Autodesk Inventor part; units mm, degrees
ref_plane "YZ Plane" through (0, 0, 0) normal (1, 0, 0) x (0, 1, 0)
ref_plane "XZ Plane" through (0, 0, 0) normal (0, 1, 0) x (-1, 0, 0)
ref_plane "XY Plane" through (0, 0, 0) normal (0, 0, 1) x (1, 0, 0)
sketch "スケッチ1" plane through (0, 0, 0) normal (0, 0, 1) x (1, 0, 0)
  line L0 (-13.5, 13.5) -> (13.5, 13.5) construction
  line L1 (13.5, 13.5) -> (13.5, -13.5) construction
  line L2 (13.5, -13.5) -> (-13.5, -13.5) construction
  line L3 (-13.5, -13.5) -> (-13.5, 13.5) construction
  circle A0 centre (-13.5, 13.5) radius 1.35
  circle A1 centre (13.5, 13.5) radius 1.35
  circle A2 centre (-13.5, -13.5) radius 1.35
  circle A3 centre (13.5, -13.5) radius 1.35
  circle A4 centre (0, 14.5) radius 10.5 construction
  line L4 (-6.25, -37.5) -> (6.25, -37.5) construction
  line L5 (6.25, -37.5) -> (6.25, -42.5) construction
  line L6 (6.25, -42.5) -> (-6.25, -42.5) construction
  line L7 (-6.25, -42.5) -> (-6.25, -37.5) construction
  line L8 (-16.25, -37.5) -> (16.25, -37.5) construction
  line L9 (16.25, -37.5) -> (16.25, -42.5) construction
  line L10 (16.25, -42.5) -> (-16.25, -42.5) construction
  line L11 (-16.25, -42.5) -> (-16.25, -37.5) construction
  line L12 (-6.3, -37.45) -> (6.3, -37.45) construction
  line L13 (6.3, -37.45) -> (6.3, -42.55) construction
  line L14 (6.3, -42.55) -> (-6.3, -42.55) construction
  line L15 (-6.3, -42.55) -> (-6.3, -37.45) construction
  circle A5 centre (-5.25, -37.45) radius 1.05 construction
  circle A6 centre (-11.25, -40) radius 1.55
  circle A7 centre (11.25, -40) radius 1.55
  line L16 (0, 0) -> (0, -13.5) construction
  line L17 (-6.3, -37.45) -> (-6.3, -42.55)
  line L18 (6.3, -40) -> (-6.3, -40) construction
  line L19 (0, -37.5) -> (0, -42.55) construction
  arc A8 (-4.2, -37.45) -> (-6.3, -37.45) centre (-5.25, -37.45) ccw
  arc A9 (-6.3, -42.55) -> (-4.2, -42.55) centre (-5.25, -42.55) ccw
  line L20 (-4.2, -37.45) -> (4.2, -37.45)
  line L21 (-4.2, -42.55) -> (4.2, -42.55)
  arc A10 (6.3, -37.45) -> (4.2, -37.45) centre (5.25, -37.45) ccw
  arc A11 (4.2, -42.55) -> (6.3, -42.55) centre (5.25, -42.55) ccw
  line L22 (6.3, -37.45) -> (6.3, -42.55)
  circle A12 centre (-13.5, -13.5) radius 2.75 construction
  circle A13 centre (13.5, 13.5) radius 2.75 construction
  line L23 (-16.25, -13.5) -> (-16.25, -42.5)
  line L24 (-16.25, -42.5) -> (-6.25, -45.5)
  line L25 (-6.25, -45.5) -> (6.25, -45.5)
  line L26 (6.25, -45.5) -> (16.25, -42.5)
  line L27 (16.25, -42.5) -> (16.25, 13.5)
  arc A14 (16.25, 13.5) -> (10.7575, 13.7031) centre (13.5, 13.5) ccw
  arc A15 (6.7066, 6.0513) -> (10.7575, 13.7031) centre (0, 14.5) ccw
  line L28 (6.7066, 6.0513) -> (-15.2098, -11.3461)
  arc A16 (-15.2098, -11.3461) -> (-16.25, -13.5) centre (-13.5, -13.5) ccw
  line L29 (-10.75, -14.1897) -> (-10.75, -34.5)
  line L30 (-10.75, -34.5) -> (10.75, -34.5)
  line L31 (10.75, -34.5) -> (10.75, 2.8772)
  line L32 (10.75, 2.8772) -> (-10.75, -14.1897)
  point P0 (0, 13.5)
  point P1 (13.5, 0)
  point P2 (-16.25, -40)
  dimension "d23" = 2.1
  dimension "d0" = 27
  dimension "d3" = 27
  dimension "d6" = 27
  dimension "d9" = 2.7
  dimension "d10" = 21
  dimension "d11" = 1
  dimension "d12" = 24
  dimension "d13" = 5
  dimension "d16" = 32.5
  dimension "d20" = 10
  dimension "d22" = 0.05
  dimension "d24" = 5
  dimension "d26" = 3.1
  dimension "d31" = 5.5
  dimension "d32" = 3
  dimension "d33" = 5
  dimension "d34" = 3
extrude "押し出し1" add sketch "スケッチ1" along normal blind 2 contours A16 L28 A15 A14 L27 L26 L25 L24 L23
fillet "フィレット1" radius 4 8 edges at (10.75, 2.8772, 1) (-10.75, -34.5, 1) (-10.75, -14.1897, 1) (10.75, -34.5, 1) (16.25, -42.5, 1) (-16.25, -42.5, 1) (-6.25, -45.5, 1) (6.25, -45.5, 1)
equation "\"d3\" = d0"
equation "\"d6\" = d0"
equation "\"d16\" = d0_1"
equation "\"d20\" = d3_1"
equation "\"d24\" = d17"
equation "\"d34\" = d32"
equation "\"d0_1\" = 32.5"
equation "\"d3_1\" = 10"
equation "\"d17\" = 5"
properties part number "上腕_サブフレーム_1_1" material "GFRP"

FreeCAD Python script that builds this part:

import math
import FreeCAD as App
import Part
import Sketcher
Q = App.Units.Quantity


def edges_at(feature, points):
    """Names of the edges that pass closest to the given points."""
    edges = feature.Shape.Edges
    near = lambda p: min(range(len(edges)), key=lambda i: edges[i].distToShape(Part.Vertex(*p))[0])
    return sorted({f"Edge{near(p) + 1}" for p in points})

doc = App.newDocument("Part")
body = doc.addObject("PartDesign::Body", "Body")

# Sketch on XY plane
sketch1 = doc.addObject("Sketcher::SketchObject", "Sketch")
body.addObject(sketch1)
sketch1.AttachmentSupport = (doc.XY_Plane, [""])
sketch1.MapMode = "FlatFace"
sketch1.addGeometry([
    Part.ArcOfCircle(Part.Circle(App.Vector(-13.5, -13.5, 0), App.Vector(0, 0, 1), 2.8), math.radians(128), math.radians(180)),  # 0
    Part.LineSegment(App.Vector(-16.2, -13.5, 0), App.Vector(-16.2, -42.5, 0)),  # 1
    Part.LineSegment(App.Vector(-16.2, -42.5, 0), App.Vector(-6.2, -45.5, 0)),  # 2
    Part.LineSegment(App.Vector(-6.2, -45.5, 0), App.Vector(6.2, -45.5, 0)),  # 3
    Part.LineSegment(App.Vector(6.2, -45.5, 0), App.Vector(16.2, -42.5, 0)),  # 4
    Part.LineSegment(App.Vector(16.2, -42.5, 0), App.Vector(16.2, 13.5, 0)),  # 5
    Part.ArcOfCircle(Part.Circle(App.Vector(13.5, 13.5, 0), App.Vector(0, 0, 1), 2.8), math.radians(0), math.radians(176)),  # 6
    Part.ArcOfCircle(Part.Circle(App.Vector(0, 14.5, 0), App.Vector(0, 0, 1), 10.8), math.radians(-52), math.radians(-4)),  # 7
    Part.LineSegment(App.Vector(6.7, 6.1, 0), App.Vector(-15.2, -11.3, 0)),  # 8
    Part.Circle(App.Vector(-11.2, -40, 0), App.Vector(0, 0, 1), 1.6),  # 9
    Part.LineSegment(App.Vector(-6.3, -42.5, 0), App.Vector(-6.3, -37.5, 0)),  # 10
    Part.ArcOfCircle(Part.Circle(App.Vector(-5.2, -37.5, 0), App.Vector(0, 0, 1), 1.1), math.radians(0), math.radians(180)),  # 11
    Part.LineSegment(App.Vector(-4.2, -37.5, 0), App.Vector(4.2, -37.5, 0)),  # 12
    Part.ArcOfCircle(Part.Circle(App.Vector(5.2, -37.5, 0), App.Vector(0, 0, 1), 1), math.radians(0), math.radians(180)),  # 13
    Part.LineSegment(App.Vector(6.3, -37.5, 0), App.Vector(6.3, -42.5, 0)),  # 14
    Part.ArcOfCircle(Part.Circle(App.Vector(5.2, -42.5, 0), App.Vector(0, 0, 1), 1), math.radians(180), math.radians(360)),  # 15
    Part.LineSegment(App.Vector(4.2, -42.5, 0), App.Vector(-4.2, -42.5, 0)),  # 16
    Part.ArcOfCircle(Part.Circle(App.Vector(-5.2, -42.5, 0), App.Vector(0, 0, 1), 1), math.radians(180), math.radians(360)),  # 17
    Part.Circle(App.Vector(11.2, -40, 0), App.Vector(0, 0, 1), 1.6),  # 18
    Part.LineSegment(App.Vector(-10.8, -34.5, 0), App.Vector(-10.8, -14.2, 0)),  # 19
    Part.LineSegment(App.Vector(-10.8, -14.2, 0), App.Vector(10.8, 2.9, 0)),  # 20
    Part.LineSegment(App.Vector(10.8, 2.9, 0), App.Vector(10.8, -34.5, 0)),  # 21
    Part.LineSegment(App.Vector(10.8, -34.5, 0), App.Vector(-10.8, -34.5, 0)),  # 22
    Part.Circle(App.Vector(-13.5, -13.5, 0), App.Vector(0, 0, 1), 1.4),  # 23
    Part.Circle(App.Vector(13.5, -13.5, 0), App.Vector(0, 0, 1), 1.4),  # 24
    Part.Circle(App.Vector(13.5, 13.5, 0), App.Vector(0, 0, 1), 1.4),  # 25
], False)
sketch1.addConstraint([
    Sketcher.Constraint("Tangent", 0, 2, 1, 1),
    Sketcher.Constraint("Coincident", 1, 2, 2, 1),
    Sketcher.Constraint("Coincident", 2, 2, 3, 1),
    Sketcher.Constraint("Coincident", 3, 2, 4, 1),
    Sketcher.Constraint("Coincident", 4, 2, 5, 1),
    Sketcher.Constraint("Tangent", 5, 2, 6, 1),
    Sketcher.Constraint("Tangent", 6, 2, 7, 2),
    Sketcher.Constraint("Tangent", 7, 1, 8, 1),
    Sketcher.Constraint("Tangent", 8, 2, 0, 1),
    Sketcher.Constraint("Tangent", 10, 2, 11, 2),
    Sketcher.Constraint("Coincident", 11, 1, 12, 1),
    Sketcher.Constraint("Coincident", 12, 2, 13, 2),
    Sketcher.Constraint("Tangent", 13, 1, 14, 1),
    Sketcher.Constraint("Tangent", 14, 2, 15, 2),
    Sketcher.Constraint("Coincident", 15, 1, 16, 1),
    Sketcher.Constraint("Coincident", 16, 2, 17, 2),
    Sketcher.Constraint("Tangent", 17, 1, 10, 1),
    Sketcher.Constraint("Coincident", 19, 2, 20, 1),
    Sketcher.Constraint("Coincident", 20, 2, 21, 1),
    Sketcher.Constraint("Coincident", 21, 2, 22, 1),
    Sketcher.Constraint("Coincident", 22, 2, 19, 1),
    Sketcher.Constraint("Vertical", 1),
    Sketcher.Constraint("Horizontal", 3),
    Sketcher.Constraint("Vertical", 5),
    Sketcher.Constraint("Vertical", 10),
    Sketcher.Constraint("Horizontal", 12),
    Sketcher.Constraint("Vertical", 14),
    Sketcher.Constraint("Horizontal", 16),
    Sketcher.Constraint("Vertical", 19),
    Sketcher.Constraint("Vertical", 21),
    Sketcher.Constraint("Horizontal", 22),
    Sketcher.Constraint("Coincident", 23, 3, 0, 3),
    Sketcher.Constraint("Coincident", 25, 3, 6, 3),
    Sketcher.Constraint("Equal", 0, 6),
    Sketcher.Constraint("Equal", 11, 13),
    Sketcher.Constraint("Equal", 13, 15),
    Sketcher.Constraint("Equal", 15, 17),
    Sketcher.Constraint("Equal", 9, 18),
    Sketcher.Constraint("Equal", 23, 24),
    Sketcher.Constraint("Equal", 24, 25),
    Sketcher.Constraint("Symmetric", 0, 3, 6, 3, -1, 1),
    Sketcher.Constraint("Symmetric", 11, 3, 13, 3, -2),
    Sketcher.Constraint("Symmetric", 9, 3, 18, 3, -2),
    Sketcher.Constraint("Symmetric", 0, 3, 24, 3, -2),
    Sketcher.Constraint("PointOnObject", 7, 3, -2),
    Sketcher.Constraint("Parallel", 8, 20),
    Sketcher.Constraint("Horizontal", 15, 3, 17, 3),
    Sketcher.Constraint("Horizontal", 1, 2, 4, 2),
    Sketcher.Constraint("Horizontal", 10, 2, 11, 1),
    Sketcher.Constraint("Horizontal", 14, 2, 15, 1),
    Sketcher.Constraint("Equal", 2, 4),
    Sketcher.Constraint("Diameter", 9, Q("3.1 mm")),
    Sketcher.Constraint("Diameter", 23, Q("2.7 mm")),
    Sketcher.Constraint("Radius", 0, Q("2.75 mm")),
    Sketcher.Constraint("Radius", 11, Q("1.05 mm")),
    Sketcher.Constraint("DistanceX", 0, 3, 6, 3, Q("27 mm")),
    Sketcher.Constraint("DistanceY", 0, 3, 6, 3, Q("27 mm")),
    Sketcher.Constraint("DistanceY", 6, 3, 7, 3, Q("1 mm")),
    Sketcher.Constraint("DistanceX", 0, 2, 9, 3, Q("5 mm")),
    Sketcher.Constraint("DistanceX", 2, 2, 17, 3, Q("1 mm")),
    Sketcher.Constraint("DistanceX", 9, 3, 2, 2, Q("5 mm")),
    Sketcher.Constraint("DistanceY", 2, 2, 1, 2, Q("3 mm")),
    Sketcher.Constraint("DistanceY", 2, 2, 9, 3, Q("5.5 mm")),
    Sketcher.Constraint("DistanceX", 0, 2, 19, 2, Q("5.5 mm")),
    Sketcher.Constraint("DistanceX", 20, 2, 5, 2, Q("5.5 mm")),
    Sketcher.Constraint("DistanceY", 18, 3, 21, 2, Q("5.5 mm")),
    Sketcher.Constraint("DistanceY", 1, 2, 1, 1, Q("29 mm")),
    Sketcher.Constraint("DistanceY", 17, 3, 1, 2, Q("0.05 mm")),
    Sketcher.Constraint("DistanceY", 10, 1, 10, 2, Q("5.1 mm")),
    Sketcher.Constraint("DistanceY", 19, 1, 19, 2, Q("20.3103 mm")),
])
pad1 = doc.addObject("PartDesign::Pad", "Pad")
body.addObject(pad1)
pad1.Profile = sketch1
pad1.Length = 2
doc.recompute()

fillet = doc.addObject("PartDesign::Fillet", "Fillet")
body.addObject(fillet)
fillet.Base = (pad1, edges_at(pad1, [
    (10.75, 2.877, 1),
    (-10.75, -34.5, 1),
    (-10.75, -14.19, 1),
    (10.75, -34.5, 1),
    (16.25, -42.5, 1),
    (-16.25, -42.5, 1),
    (-6.25, -45.5, 1),
    (6.25, -45.5, 1),
]))
fillet.Radius = 4

doc.recompute()
